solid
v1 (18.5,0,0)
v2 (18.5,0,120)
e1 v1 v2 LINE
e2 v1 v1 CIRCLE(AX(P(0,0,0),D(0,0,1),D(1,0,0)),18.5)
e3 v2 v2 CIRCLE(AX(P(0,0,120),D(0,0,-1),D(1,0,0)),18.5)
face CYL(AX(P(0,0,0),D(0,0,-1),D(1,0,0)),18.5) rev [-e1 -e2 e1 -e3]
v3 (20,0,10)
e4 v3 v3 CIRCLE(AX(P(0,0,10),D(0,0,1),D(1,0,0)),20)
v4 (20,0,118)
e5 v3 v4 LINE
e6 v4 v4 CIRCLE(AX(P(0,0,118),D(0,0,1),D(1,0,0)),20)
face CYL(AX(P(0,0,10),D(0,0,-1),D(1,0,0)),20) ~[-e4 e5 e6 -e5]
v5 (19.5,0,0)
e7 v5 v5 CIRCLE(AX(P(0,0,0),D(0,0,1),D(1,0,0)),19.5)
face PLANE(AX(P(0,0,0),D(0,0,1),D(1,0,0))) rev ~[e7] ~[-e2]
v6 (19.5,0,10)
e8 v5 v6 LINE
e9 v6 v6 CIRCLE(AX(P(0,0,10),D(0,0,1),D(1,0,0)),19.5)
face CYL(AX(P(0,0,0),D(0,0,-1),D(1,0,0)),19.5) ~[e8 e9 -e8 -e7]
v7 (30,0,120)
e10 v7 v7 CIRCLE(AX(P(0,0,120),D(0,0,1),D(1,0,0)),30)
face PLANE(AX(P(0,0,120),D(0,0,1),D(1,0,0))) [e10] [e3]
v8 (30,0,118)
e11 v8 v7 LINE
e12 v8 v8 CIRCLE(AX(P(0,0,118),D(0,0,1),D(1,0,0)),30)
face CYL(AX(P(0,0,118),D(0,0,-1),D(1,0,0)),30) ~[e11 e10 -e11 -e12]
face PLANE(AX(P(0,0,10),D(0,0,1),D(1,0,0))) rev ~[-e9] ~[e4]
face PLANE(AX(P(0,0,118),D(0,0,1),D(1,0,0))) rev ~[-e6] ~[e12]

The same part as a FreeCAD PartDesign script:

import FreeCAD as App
import Part
import Sketcher
from FreeCAD import Vector
Q = App.Units.Quantity

doc = App.newDocument("Part")
body = doc.addObject("PartDesign::Body", "Body")

# Sketch on XY plane
sketch1 = body.newObject("Sketcher::SketchObject", "Sketch")
sketch1.AttachmentSupport = (doc.getObject("XY_Plane"), [""])
sketch1.MapMode = "FlatFace"
sketch1.addGeometry(Part.Circle(Vector(0, 0, 0), Vector(0, 0, 1), 20), False)
sketch1.addConstraint(Sketcher.Constraint("Coincident", 0, 3, -1, 1))
sketch1.addConstraint(Sketcher.Constraint("Diameter", 0, Q("39 mm")))
pad1 = body.newObject("PartDesign::Pad", "Pad")
pad1.Profile = sketch1
pad1.Length = 10

# Sketch on XY plane
sketch2 = body.newObject("Sketcher::SketchObject", "Sketch001")
sketch2.AttachmentSupport = (doc.getObject("XY_Plane"), [""])
sketch2.MapMode = "FlatFace"
sketch2.AttachmentOffset = App.Placement(Vector(0, 0, 10), App.Rotation())
sketch2.addGeometry(Part.Circle(Vector(0, 0, 0), Vector(0, 0, 1), 20), False)
sketch2.addConstraint(Sketcher.Constraint("Coincident", 0, 3, -1, 1))
sketch2.addConstraint(Sketcher.Constraint("Diameter", 0, Q("40 mm")))
pad2 = body.newObject("PartDesign::Pad", "Pad001")
pad2.Profile = sketch2
pad2.Length = 110

# Sketch on XY plane
sketch3 = body.newObject("Sketcher::SketchObject", "Sketch002")
sketch3.AttachmentSupport = (doc.getObject("XY_Plane"), [""])
sketch3.MapMode = "FlatFace"
sketch3.addGeometry(Part.Circle(Vector(0, 0, 0), Vector(0, 0, 1), 18), False)
sketch3.addConstraint(Sketcher.Constraint("Coincident", 0, 3, -1, 1))
sketch3.addConstraint(Sketcher.Constraint("Diameter", 0, Q("37 mm")))
pocket1 = body.newObject("PartDesign::Pocket", "Pocket")
pocket1.Profile = sketch3
pocket1.Type = "ThroughAll"
pocket1.Reversed = True

# Sketch on XY plane
sketch4 = body.newObject("Sketcher::SketchObject", "Sketch003")
sketch4.AttachmentSupport = (doc.getObject("XY_Plane"), [""])
sketch4.MapMode = "FlatFace"
sketch4.AttachmentOffset = App.Placement(Vector(0, 0, 118), App.Rotation())
sketch4.addGeometry(Part.Circle(Vector(0, 0, 0), Vector(0, 0, 1), 30), False)
sketch4.addGeometry(Part.Circle(Vector(0, 0, 0), Vector(0, 0, 1), 20), False)
sketch4.addConstraint(Sketcher.Constraint("Coincident", 0, 3, -1, 1))
sketch4.addConstraint(Sketcher.Constraint("Coincident", 1, 3, -1, 1))
sketch4.addConstraint(Sketcher.Constraint("Diameter", 0, Q("60 mm")))
sketch4.addConstraint(Sketcher.Constraint("Diameter", 1, Q("40 mm")))
pad3 = body.newObject("PartDesign::Pad", "Pad002")
pad3.Profile = sketch4
pad3.Length = 2

doc.recompute()
